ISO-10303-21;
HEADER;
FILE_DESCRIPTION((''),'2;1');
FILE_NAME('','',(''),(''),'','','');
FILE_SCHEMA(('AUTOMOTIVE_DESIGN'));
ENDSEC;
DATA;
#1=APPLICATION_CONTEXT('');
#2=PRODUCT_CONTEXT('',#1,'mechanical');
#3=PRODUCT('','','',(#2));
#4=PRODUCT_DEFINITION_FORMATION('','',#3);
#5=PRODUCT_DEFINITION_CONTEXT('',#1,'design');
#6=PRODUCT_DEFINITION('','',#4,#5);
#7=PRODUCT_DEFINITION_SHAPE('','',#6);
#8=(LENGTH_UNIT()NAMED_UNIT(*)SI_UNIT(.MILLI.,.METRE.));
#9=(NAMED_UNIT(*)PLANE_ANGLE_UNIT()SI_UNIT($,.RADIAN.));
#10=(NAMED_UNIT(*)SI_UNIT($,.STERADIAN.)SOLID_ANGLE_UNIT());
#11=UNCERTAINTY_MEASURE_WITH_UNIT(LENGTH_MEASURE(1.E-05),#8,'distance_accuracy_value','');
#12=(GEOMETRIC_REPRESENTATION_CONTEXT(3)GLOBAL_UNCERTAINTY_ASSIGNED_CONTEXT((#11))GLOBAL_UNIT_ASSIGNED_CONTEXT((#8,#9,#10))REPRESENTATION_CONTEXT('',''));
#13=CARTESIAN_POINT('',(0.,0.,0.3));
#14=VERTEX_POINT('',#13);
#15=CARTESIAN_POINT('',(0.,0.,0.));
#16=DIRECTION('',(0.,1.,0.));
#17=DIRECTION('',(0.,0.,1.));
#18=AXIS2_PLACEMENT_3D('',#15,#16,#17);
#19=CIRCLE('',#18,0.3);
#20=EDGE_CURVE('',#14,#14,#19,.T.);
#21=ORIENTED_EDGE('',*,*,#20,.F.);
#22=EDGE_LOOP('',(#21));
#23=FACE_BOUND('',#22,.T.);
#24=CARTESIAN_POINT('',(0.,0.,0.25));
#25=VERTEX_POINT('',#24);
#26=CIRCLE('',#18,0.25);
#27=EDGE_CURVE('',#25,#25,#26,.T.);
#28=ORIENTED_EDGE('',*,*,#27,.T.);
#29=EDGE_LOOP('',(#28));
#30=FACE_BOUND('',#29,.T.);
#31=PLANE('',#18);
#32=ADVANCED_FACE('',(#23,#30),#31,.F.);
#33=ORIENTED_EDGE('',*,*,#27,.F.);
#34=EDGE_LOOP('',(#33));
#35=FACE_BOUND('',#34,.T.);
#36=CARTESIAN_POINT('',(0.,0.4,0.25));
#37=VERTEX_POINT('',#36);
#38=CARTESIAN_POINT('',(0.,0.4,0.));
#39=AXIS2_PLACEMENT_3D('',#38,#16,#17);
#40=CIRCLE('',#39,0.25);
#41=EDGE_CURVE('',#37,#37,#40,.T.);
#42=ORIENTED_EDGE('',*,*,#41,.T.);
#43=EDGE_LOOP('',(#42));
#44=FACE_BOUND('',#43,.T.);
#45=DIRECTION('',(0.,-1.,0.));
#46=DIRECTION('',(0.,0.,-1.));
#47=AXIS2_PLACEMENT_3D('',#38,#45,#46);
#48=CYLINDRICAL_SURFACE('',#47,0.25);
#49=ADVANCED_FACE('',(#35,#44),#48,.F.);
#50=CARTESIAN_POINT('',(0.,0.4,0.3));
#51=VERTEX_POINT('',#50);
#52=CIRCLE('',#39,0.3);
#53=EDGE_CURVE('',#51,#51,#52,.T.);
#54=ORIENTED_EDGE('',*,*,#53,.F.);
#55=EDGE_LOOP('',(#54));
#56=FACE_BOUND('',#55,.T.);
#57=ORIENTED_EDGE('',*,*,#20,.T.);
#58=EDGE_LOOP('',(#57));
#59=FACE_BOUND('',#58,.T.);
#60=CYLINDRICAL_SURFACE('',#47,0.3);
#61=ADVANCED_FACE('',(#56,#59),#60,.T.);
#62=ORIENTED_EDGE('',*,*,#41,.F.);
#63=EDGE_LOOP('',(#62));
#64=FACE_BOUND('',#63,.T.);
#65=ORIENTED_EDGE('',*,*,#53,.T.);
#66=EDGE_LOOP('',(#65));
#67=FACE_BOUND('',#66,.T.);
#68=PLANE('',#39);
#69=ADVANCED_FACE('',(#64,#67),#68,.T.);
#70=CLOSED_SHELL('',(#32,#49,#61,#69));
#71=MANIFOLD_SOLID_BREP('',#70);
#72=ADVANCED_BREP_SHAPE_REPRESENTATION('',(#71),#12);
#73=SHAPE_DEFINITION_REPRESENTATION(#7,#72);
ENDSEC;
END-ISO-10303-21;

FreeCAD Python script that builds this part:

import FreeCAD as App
import Part
import Sketcher
Q = App.Units.Quantity

doc = App.newDocument("Part")
body = doc.addObject("PartDesign::Body", "Body")

# Sketch on XZ plane
sketch1 = body.newObject("Sketcher::SketchObject", "Sketch")
sketch1.AttachmentSupport = (doc.getObject("XZ_Plane"), [""])
sketch1.MapMode = "FlatFace"
sketch1.addGeometry([
    Part.Circle(App.Vector(0, 0, 0), App.Vector(0, 0, 1), 0.3),
    Part.Circle(App.Vector(0, 0, 0), App.Vector(0, 0, 1), 0.25),
], False)
sketch1.addConstraint([
    Sketcher.Constraint("Coincident", 0, 3, -1, 1),
    Sketcher.Constraint("Coincident", 1, 3, -1, 1),
    Sketcher.Constraint("Diameter", 0, Q("0.6 mm")),
    Sketcher.Constraint("Diameter", 1, Q("0.5 mm")),
])
pad1 = body.newObject("PartDesign::Pad", "Pad")
pad1.Profile = sketch1
pad1.Length = 0.4
pad1.Reversed = True

doc.recompute()
